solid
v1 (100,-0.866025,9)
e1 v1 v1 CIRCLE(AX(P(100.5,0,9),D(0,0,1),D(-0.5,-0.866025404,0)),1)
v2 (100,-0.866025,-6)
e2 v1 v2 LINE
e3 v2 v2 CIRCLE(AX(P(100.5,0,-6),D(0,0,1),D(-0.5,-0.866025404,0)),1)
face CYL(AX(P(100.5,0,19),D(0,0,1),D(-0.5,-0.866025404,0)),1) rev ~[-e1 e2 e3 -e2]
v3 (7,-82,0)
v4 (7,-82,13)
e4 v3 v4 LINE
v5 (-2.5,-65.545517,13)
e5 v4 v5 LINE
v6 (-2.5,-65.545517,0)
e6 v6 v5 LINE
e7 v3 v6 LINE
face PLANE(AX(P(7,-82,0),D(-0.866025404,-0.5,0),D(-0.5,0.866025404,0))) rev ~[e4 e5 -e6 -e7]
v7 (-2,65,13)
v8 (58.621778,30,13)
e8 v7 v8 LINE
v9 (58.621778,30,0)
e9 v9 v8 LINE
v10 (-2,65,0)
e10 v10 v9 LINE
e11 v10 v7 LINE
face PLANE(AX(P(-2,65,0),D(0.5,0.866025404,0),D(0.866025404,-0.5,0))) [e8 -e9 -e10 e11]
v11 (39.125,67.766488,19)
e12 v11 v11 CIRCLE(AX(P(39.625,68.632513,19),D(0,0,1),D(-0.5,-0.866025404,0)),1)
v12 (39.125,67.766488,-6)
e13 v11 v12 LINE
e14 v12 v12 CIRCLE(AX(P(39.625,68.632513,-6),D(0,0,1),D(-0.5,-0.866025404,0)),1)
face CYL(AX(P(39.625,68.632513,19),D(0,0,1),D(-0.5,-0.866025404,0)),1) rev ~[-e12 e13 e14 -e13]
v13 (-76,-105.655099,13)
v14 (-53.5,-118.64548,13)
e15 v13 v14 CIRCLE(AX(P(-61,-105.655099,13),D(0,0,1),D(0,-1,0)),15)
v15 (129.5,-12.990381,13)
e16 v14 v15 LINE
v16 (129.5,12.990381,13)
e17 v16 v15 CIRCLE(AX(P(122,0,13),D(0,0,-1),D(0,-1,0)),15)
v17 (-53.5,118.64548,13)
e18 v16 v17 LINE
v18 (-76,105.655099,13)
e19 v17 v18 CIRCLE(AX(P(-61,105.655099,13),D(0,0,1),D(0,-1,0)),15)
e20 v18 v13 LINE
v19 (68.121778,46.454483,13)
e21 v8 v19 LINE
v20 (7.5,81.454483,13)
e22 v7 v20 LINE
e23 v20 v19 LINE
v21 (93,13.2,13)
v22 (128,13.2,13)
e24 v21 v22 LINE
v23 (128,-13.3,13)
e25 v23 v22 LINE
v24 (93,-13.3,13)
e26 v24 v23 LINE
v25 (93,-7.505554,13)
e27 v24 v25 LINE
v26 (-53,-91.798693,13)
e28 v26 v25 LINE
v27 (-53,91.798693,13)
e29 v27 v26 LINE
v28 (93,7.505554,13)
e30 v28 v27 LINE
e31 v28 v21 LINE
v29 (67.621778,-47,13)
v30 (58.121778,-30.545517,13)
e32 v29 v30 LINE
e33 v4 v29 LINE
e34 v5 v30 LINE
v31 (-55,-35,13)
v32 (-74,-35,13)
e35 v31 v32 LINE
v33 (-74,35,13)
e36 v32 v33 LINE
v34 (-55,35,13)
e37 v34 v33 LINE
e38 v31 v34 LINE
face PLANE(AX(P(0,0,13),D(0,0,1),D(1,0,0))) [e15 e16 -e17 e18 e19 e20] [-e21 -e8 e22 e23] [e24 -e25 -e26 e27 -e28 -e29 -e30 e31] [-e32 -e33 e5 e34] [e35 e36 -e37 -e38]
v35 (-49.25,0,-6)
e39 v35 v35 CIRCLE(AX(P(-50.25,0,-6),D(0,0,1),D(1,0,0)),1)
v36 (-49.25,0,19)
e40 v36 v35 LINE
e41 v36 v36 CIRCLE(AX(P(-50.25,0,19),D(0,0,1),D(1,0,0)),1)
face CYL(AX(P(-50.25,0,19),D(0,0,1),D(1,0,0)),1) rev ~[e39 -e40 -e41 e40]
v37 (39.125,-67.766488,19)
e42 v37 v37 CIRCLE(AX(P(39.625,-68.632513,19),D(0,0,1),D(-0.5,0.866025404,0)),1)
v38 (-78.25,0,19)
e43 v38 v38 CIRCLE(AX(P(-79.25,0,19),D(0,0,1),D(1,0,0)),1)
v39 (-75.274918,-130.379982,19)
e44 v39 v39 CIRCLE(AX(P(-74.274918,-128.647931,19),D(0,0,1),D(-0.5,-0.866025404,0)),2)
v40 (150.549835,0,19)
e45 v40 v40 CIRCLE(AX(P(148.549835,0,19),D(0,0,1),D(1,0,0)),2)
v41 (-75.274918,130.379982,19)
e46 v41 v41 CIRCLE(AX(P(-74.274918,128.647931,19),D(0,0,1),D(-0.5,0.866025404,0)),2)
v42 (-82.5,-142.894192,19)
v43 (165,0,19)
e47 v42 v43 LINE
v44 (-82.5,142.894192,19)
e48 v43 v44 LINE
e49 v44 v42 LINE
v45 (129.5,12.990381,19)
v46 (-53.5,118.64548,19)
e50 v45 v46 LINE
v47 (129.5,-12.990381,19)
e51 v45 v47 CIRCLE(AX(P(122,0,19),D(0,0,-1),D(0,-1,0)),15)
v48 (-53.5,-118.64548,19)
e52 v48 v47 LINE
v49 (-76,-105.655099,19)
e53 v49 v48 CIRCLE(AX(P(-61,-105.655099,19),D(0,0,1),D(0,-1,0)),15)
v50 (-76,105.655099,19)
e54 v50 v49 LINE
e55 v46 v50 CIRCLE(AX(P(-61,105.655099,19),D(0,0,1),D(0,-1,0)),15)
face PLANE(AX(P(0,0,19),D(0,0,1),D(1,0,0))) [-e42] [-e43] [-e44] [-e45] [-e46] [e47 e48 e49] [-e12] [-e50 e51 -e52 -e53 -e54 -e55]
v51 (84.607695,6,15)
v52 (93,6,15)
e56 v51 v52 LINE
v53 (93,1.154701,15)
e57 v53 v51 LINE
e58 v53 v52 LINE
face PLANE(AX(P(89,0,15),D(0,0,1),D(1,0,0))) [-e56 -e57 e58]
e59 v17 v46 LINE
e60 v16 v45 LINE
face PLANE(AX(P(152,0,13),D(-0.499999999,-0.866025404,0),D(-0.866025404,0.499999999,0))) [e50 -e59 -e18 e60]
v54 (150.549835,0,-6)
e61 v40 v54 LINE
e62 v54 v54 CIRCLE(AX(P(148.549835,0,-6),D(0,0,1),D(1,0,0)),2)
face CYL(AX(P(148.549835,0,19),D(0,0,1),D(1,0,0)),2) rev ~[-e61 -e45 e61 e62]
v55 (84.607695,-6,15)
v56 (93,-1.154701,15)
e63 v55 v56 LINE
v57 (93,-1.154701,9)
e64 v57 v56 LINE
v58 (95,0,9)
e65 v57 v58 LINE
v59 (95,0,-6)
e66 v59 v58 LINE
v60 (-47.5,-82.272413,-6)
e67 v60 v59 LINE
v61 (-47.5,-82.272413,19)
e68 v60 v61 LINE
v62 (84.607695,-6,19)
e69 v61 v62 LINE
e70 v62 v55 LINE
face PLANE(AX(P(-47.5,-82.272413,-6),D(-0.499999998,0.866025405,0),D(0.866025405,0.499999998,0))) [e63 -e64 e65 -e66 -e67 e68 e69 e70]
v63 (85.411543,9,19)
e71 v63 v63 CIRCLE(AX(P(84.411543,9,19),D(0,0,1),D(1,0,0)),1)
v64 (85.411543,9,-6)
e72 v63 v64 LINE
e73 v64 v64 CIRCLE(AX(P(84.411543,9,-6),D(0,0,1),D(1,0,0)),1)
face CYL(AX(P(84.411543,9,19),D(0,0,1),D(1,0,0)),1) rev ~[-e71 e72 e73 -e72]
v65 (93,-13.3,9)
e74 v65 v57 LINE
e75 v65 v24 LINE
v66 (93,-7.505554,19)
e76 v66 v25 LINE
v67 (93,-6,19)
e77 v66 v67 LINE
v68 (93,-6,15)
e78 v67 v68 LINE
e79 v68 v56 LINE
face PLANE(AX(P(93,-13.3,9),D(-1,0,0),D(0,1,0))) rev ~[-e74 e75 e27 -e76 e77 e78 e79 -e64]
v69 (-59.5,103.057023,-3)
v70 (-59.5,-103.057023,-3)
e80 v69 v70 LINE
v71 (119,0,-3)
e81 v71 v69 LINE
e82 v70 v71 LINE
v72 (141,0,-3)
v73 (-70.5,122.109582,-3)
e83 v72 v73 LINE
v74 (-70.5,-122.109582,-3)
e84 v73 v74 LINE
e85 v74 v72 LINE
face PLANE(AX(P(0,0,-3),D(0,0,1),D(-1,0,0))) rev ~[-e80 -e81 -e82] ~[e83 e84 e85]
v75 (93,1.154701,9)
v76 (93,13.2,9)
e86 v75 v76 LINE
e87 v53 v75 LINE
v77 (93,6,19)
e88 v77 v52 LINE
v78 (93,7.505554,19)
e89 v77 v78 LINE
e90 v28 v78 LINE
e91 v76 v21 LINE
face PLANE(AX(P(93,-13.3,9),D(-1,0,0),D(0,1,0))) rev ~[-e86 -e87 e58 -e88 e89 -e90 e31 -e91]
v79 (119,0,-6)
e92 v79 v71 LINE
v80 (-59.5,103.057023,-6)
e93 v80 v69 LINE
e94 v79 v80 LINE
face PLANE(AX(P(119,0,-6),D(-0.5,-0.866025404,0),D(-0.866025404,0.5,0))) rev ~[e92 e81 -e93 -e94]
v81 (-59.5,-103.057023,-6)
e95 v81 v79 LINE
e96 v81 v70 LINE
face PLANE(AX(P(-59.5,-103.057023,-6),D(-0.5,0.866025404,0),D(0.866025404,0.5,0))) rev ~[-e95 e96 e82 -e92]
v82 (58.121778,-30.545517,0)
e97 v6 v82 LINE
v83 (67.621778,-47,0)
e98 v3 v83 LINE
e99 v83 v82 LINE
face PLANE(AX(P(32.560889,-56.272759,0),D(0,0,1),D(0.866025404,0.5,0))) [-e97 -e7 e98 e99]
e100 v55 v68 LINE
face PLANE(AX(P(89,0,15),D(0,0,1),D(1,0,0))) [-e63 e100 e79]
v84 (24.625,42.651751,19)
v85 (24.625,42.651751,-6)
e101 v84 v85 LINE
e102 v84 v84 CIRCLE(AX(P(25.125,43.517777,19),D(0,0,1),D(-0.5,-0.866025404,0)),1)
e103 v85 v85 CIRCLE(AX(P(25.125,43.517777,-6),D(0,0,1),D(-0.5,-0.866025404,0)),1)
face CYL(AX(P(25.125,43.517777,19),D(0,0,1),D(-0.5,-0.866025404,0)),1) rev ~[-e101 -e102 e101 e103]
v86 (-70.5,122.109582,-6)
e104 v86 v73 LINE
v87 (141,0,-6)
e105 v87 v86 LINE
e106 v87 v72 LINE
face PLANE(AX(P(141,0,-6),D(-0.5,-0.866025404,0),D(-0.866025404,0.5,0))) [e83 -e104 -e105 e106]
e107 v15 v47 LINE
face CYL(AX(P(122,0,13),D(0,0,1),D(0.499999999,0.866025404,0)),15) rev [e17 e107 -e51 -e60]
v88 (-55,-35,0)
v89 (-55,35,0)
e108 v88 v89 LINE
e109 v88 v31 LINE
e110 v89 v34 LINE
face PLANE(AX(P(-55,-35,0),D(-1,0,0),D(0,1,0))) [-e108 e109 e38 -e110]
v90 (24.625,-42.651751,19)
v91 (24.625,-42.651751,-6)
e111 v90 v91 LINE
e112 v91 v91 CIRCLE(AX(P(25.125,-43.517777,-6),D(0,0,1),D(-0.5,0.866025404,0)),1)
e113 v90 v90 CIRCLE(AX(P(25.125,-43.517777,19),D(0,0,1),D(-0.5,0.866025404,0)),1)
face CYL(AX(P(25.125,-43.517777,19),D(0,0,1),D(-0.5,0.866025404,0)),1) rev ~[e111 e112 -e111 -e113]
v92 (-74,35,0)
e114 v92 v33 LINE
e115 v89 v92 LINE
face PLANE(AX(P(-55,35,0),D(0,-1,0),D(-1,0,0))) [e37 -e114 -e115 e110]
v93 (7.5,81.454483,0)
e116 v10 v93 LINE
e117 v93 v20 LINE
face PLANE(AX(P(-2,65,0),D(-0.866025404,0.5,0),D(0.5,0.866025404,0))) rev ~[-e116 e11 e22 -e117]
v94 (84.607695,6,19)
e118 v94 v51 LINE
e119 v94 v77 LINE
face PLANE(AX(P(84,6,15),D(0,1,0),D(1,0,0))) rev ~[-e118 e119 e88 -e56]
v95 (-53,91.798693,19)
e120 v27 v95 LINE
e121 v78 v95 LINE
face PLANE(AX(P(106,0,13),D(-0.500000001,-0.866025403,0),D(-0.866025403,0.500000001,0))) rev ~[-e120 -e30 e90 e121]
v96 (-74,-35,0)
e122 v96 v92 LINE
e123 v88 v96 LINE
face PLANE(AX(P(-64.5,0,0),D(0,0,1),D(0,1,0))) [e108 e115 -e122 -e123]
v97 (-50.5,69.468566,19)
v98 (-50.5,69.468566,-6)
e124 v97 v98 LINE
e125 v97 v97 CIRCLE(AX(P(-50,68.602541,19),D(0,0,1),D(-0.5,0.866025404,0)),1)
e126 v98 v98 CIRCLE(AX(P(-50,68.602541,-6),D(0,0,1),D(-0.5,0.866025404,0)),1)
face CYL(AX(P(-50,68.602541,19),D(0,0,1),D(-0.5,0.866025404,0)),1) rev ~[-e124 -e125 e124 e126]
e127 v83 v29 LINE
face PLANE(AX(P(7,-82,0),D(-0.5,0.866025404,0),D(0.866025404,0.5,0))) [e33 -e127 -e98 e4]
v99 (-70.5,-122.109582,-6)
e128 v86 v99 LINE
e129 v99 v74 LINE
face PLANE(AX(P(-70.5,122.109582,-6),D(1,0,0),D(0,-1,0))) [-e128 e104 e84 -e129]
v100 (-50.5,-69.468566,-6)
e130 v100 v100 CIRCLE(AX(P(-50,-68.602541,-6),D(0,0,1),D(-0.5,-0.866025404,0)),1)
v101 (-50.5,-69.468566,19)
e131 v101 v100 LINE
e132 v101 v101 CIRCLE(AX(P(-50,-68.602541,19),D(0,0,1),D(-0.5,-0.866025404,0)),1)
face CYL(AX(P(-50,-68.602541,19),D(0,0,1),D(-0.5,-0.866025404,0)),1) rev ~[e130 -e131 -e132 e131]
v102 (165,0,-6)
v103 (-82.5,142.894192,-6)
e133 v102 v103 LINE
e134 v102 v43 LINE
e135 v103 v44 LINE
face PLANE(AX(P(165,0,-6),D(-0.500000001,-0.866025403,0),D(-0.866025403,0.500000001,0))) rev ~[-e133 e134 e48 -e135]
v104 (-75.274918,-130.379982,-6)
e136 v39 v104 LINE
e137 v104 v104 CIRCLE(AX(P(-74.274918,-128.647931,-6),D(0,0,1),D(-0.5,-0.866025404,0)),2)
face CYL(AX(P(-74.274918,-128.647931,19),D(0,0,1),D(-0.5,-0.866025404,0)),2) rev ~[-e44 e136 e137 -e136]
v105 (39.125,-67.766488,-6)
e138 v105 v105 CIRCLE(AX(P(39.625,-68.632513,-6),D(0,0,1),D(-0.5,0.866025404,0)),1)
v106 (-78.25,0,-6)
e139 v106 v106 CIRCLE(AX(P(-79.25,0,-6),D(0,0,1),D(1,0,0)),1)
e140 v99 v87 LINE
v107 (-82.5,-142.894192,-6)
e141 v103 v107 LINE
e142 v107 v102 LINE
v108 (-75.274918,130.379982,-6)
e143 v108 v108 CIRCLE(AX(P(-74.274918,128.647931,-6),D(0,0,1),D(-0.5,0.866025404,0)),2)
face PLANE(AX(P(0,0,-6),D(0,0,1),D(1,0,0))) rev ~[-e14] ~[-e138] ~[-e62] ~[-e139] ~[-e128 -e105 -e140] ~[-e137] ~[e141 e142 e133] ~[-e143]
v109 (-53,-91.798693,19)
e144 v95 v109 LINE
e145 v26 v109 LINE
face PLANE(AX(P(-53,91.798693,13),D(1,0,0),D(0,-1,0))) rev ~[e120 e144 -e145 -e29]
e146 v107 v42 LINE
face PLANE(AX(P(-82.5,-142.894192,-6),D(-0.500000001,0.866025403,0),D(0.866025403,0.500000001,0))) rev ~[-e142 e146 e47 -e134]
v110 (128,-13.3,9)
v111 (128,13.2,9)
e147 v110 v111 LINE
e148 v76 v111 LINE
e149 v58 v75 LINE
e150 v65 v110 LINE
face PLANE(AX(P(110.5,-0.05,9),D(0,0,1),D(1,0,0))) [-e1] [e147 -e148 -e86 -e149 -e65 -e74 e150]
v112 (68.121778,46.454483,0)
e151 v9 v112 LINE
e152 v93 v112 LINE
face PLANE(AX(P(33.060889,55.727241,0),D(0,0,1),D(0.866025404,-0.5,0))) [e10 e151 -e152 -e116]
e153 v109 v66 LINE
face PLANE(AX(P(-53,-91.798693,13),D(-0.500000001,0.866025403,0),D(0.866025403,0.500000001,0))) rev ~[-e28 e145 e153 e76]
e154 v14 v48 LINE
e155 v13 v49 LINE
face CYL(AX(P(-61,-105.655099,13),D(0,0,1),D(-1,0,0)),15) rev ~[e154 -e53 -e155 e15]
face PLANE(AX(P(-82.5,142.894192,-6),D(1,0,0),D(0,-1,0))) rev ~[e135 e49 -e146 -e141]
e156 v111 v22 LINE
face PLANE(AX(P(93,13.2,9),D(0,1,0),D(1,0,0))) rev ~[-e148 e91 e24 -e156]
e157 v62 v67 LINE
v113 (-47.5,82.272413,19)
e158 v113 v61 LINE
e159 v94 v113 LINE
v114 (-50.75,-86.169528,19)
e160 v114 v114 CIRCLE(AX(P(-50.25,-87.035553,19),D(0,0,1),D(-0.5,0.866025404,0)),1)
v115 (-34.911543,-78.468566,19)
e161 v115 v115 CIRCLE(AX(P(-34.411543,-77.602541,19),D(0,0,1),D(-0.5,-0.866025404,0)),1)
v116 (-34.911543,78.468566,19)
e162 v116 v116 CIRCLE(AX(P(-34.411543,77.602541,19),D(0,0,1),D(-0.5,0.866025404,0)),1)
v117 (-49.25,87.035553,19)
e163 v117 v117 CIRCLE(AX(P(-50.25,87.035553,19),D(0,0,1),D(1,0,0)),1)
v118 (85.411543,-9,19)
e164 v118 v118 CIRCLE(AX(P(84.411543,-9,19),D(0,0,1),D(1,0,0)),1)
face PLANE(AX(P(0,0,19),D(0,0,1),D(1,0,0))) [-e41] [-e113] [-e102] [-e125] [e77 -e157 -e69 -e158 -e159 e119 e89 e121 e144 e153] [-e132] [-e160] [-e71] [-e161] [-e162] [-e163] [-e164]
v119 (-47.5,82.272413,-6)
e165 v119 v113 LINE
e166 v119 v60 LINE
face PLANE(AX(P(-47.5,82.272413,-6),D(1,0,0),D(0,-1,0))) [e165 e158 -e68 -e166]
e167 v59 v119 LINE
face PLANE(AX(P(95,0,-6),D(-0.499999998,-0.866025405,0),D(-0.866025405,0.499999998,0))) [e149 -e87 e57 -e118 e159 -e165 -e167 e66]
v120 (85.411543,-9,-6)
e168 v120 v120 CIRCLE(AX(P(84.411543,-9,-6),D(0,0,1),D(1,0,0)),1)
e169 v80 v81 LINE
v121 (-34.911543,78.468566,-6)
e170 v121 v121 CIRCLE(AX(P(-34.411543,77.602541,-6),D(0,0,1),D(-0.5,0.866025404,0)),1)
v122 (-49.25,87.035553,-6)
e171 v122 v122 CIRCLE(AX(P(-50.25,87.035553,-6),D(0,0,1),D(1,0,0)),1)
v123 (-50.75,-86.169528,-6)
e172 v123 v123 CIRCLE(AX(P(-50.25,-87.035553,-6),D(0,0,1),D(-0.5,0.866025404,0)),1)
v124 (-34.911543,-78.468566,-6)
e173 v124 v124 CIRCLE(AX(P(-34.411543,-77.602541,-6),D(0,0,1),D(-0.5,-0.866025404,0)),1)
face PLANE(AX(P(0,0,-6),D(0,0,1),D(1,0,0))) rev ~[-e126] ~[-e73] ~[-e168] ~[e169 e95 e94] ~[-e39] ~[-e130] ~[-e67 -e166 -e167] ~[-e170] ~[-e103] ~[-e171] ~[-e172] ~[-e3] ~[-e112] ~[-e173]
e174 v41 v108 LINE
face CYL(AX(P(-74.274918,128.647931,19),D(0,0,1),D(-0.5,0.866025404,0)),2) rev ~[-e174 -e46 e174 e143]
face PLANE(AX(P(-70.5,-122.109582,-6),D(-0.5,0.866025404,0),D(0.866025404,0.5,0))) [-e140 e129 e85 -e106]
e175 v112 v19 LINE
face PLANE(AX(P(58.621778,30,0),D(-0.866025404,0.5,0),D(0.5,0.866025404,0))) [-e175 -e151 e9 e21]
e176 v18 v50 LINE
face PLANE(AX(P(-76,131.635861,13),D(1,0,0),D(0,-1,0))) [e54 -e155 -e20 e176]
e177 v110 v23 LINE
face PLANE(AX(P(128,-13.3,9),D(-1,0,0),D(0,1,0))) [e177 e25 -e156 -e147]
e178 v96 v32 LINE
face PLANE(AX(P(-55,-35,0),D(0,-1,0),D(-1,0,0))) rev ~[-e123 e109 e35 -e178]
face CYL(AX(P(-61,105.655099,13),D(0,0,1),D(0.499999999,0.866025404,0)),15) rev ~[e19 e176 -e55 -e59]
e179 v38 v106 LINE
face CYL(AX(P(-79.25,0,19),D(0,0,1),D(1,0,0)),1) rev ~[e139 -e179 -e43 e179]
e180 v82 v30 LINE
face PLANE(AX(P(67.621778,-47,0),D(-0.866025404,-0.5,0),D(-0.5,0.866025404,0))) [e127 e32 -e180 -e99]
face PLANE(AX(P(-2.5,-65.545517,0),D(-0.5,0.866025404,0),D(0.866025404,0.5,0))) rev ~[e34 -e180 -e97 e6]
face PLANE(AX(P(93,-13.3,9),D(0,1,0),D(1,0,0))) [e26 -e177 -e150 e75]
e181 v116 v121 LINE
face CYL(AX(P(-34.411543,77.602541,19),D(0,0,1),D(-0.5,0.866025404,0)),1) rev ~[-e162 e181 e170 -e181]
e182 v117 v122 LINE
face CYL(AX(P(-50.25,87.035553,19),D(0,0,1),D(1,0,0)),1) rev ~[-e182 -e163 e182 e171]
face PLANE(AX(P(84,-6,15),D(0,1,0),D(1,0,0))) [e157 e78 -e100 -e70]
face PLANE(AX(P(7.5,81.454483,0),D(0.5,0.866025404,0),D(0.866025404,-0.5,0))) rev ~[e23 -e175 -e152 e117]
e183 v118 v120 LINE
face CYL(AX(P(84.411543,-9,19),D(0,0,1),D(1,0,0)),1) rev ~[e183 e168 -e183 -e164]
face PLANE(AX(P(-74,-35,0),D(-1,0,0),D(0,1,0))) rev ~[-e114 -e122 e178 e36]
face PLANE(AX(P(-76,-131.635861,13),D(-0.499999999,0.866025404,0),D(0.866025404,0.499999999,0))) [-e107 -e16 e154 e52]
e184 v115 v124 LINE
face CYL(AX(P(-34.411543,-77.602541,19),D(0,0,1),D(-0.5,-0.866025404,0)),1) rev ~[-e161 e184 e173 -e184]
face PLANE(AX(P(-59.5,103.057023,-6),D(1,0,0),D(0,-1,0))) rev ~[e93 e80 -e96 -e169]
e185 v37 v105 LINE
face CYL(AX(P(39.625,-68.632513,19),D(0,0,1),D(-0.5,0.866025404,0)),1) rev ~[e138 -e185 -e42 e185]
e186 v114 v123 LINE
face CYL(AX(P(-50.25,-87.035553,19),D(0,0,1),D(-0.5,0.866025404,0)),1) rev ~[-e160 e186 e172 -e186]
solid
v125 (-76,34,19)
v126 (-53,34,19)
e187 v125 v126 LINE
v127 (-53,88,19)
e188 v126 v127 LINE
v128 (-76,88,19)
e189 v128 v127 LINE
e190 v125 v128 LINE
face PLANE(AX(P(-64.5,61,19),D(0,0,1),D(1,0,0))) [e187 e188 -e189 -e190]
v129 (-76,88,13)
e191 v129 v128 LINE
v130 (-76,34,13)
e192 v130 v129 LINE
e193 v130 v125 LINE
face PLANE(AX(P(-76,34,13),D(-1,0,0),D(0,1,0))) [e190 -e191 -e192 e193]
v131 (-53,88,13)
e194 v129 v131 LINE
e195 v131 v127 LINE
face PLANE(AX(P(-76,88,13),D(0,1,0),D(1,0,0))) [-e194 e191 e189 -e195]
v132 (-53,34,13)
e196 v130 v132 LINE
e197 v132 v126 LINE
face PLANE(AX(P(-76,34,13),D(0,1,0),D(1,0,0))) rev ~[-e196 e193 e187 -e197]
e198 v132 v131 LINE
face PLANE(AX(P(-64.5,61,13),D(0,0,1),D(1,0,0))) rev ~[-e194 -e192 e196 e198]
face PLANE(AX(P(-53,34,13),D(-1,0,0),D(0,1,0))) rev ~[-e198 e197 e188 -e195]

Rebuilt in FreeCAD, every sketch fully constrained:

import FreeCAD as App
import Part
import Sketcher
from FreeCAD import Vector
Q = App.Units.Quantity


def edges_at(feature, points):
    """Names of the edges that pass closest to the given points."""
    edges = feature.Shape.Edges
    near = lambda p: min(range(len(edges)), key=lambda i: edges[i].distToShape(Part.Vertex(*p))[0])
    return sorted({f"Edge{near(p) + 1}" for p in points})

doc = App.newDocument("Part")
body = doc.addObject("PartDesign::Body", "Body")

sketch1 = doc.addObject("Sketcher::SketchObject", "Sketch")
body.addObject(sketch1)
sketch1.AttachmentSupport = (doc.XY_Plane, [""])
sketch1.MapMode = "FlatFace"
sketch1.AttachmentOffset = App.Placement(Vector(0, 0, 13), App.Rotation())
sketch1.addGeometry([
    Part.LineSegment(Vector(-76, 88, 0), Vector(-76, 34, 0)),
    Part.LineSegment(Vector(-76, 34, 0), Vector(-53, 34, 0)),
    Part.LineSegment(Vector(-53, 34, 0), Vector(-53, 88, 0)),
    Part.LineSegment(Vector(-53, 88, 0), Vector(-76, 88, 0)),
], False)
sketch1.addConstraint([
    Sketcher.Constraint("Coincident", 0, 2, 1, 1),
    Sketcher.Constraint("Coincident", 1, 2, 2, 1),
    Sketcher.Constraint("Coincident", 2, 2, 3, 1),
    Sketcher.Constraint("Coincident", 3, 2, 0, 1),
    Sketcher.Constraint("Vertical", 0),
    Sketcher.Constraint("Horizontal", 1),
    Sketcher.Constraint("Vertical", 2),
    Sketcher.Constraint("Horizontal", 3),
    Sketcher.Constraint("DistanceX", 1, 1, 1, 2, Q("23 mm")),
    Sketcher.Constraint("DistanceY", 0, 2, 0, 1, Q("54 mm")),
    Sketcher.Constraint("DistanceX", 0, 2, -1, 1, Q("76 mm")),
    Sketcher.Constraint("DistanceY", -1, 1, 0, 2, Q("34 mm")),
])
pad1 = doc.addObject("PartDesign::Pad", "Pad")
body.addObject(pad1)
pad1.Profile = sketch1
pad1.Length = 6
body2 = doc.addObject("PartDesign::Body", "Body001")

sketch2 = doc.addObject("Sketcher::SketchObject", "Sketch001")
body2.addObject(sketch2)
sketch2.AttachmentSupport = (doc.getObject("XY_Plane001"), [""])
sketch2.MapMode = "FlatFace"
sketch2.AttachmentOffset = App.Placement(Vector(0, 0, 13), App.Rotation())
sketch2.addGeometry([
    Part.LineSegment(Vector(106, 0, 0), Vector(-53, 92, 0)),
    Part.LineSegment(Vector(-53, 92, 0), Vector(-53, -92, 0)),
    Part.LineSegment(Vector(-53, -92, 0), Vector(106, 0, 0)),
], False)
sketch2.addConstraint([
    Sketcher.Constraint("Coincident", 0, 2, 1, 1),
    Sketcher.Constraint("Coincident", 1, 2, 2, 1),
    Sketcher.Constraint("Coincident", 2, 2, 0, 1),
    Sketcher.Constraint("Vertical", 1),
    Sketcher.Constraint("PointOnObject", 2, 2, -1),
    Sketcher.Constraint("Equal", 0, 2),
    Sketcher.Constraint("Angle", 0, Q("150 deg")),
    Sketcher.Constraint("DistanceX", 0, 2, -1, 1, Q("53 mm")),
    Sketcher.Constraint("DistanceX", -1, 1, 2, 2, Q("106 mm")),
])
pad2 = doc.addObject("PartDesign::Pad", "Pad001")
body2.addObject(pad2)
pad2.Profile = sketch2
pad2.Length = 6
body3 = doc.addObject("PartDesign::Body", "Body002")

sketch3 = doc.addObject("Sketcher::SketchObject", "Sketch002")
body3.addObject(sketch3)
sketch3.AttachmentSupport = (doc.getObject("XY_Plane002"), [""])
sketch3.MapMode = "FlatFace"
sketch3.AttachmentOffset = App.Placement(Vector(0, 0, 13), App.Rotation())
sketch3.addGeometry([
    Part.LineSegment(Vector(152, 0, 0), Vector(-76, 132, 0)),
    Part.LineSegment(Vector(-76, 132, 0), Vector(-76, -132, 0)),
    Part.LineSegment(Vector(-76, -132, 0), Vector(152, 0, 0)),
], False)
sketch3.addConstraint([
    Sketcher.Constraint("Coincident", 0, 2, 1, 1),
    Sketcher.Constraint("Coincident", 1, 2, 2, 1),
    Sketcher.Constraint("Coincident", 2, 2, 0, 1),
    Sketcher.Constraint("Vertical", 1),
    Sketcher.Constraint("PointOnObject", 2, 2, -1),
    Sketcher.Constraint("Equal", 0, 2),
    Sketcher.Constraint("Angle", 0, Q("150 deg")),
    Sketcher.Constraint("DistanceX", 0, 2, -1, 1, Q("76 mm")),
    Sketcher.Constraint("DistanceX", -1, 1, 2, 2, Q("152 mm")),
])
pad3 = doc.addObject("PartDesign::Pad", "Pad002")
body3.addObject(pad3)
pad3.Profile = sketch3
pad3.Length = 6
doc.recompute()

boolean = doc.addObject("PartDesign::Boolean", "Boolean")
body3.addObject(boolean)
boolean.Type = "Cut"
boolean.addObjects([body2])
body4 = doc.addObject("PartDesign::Body", "Body003")

sketch4 = doc.addObject("Sketcher::SketchObject", "Sketch003")
body4.addObject(sketch4)
sketch4.AttachmentSupport = (doc.getObject("XY_Plane003"), [""])
sketch4.MapMode = "FlatFace"
sketch4.AttachmentOffset = App.Placement(Vector(0, 0, 15), App.Rotation())
sketch4.addGeometry([
    Part.LineSegment(Vector(84, 6, 0), Vector(84, -6, 0)),
    Part.LineSegment(Vector(84, -6, 0), Vector(94, -6, 0)),
    Part.LineSegment(Vector(94, -6, 0), Vector(94, 6, 0)),
    Part.LineSegment(Vector(94, 6, 0), Vector(84, 6, 0)),
], False)
sketch4.addConstraint([
    Sketcher.Constraint("Coincident", 0, 2, 1, 1),
    Sketcher.Constraint("Coincident", 1, 2, 2, 1),
    Sketcher.Constraint("Coincident", 2, 2, 3, 1),
    Sketcher.Constraint("Coincident", 3, 2, 0, 1),
    Sketcher.Constraint("Vertical", 0),
    Sketcher.Constraint("Horizontal", 1),
    Sketcher.Constraint("Vertical", 2),
    Sketcher.Constraint("Horizontal", 3),
    Sketcher.Constraint("DistanceX", 1, 1, 1, 2, Q("10 mm")),
    Sketcher.Constraint("DistanceY", 0, 2, 0, 1, Q("12 mm")),
    Sketcher.Constraint("DistanceX", -1, 1, 0, 2, Q("84 mm")),
    Sketcher.Constraint("DistanceY", 0, 2, -1, 1, Q("6 mm")),
])
pad4 = doc.addObject("PartDesign::Pad", "Pad003")
body4.addObject(pad4)
pad4.Profile = sketch4
pad4.Length = 4
body5 = doc.addObject("PartDesign::Body", "Body004")

sketch5 = doc.addObject("Sketcher::SketchObject", "Sketch004")
body5.addObject(sketch5)
sketch5.AttachmentSupport = (doc.getObject("XY_Plane004"), [""])
sketch5.MapMode = "FlatFace"
sketch5.AttachmentOffset = App.Placement(Vector(0, 0, 9), App.Rotation())
sketch5.addGeometry([
    Part.LineSegment(Vector(93, 13, 0), Vector(93, -13, 0)),
    Part.LineSegment(Vector(93, -13, 0), Vector(128, -13, 0)),
    Part.LineSegment(Vector(128, -13, 0), Vector(128, 13, 0)),
    Part.LineSegment(Vector(128, 13, 0), Vector(93, 13, 0)),
], False)
sketch5.addConstraint([
    Sketcher.Constraint("Coincident", 0, 2, 1, 1),
    Sketcher.Constraint("Coincident", 1, 2, 2, 1),
    Sketcher.Constraint("Coincident", 2, 2, 3, 1),
    Sketcher.Constraint("Coincident", 3, 2, 0, 1),
    Sketcher.Constraint("Vertical", 0),
    Sketcher.Constraint("Horizontal", 1),
    Sketcher.Constraint("Vertical", 2),
    Sketcher.Constraint("Horizontal", 3),
    Sketcher.Constraint("DistanceX", 1, 1, 1, 2, Q("35 mm")),
    Sketcher.Constraint("DistanceY", 0, 2, 0, 1, Q("26.5 mm")),
    Sketcher.Constraint("DistanceX", -1, 1, 0, 2, Q("93 mm")),
    Sketcher.Constraint("DistanceY", 0, 2, -1, 1, Q("13.3 mm")),
])
pad5 = doc.addObject("PartDesign::Pad", "Pad004")
body5.addObject(pad5)
pad5.Profile = sketch5
pad5.Length = 10
body6 = doc.addObject("PartDesign::Body", "Body005")

sketch6 = doc.addObject("Sketcher::SketchObject", "Sketch005")
body6.addObject(sketch6)
sketch6.AttachmentSupport = (doc.getObject("XY_Plane005"), [""])
sketch6.MapMode = "FlatFace"
sketch6.addGeometry([
    Part.LineSegment(Vector(0, 19, 0), Vector(0, 0, 0)),
    Part.LineSegment(Vector(0, 0, 0), Vector(70, 0, 0)),
    Part.LineSegment(Vector(70, 0, 0), Vector(70, 19, 0)),
    Part.LineSegment(Vector(70, 19, 0), Vector(0, 19, 0)),
], False)
sketch6.addConstraint([
    Sketcher.Constraint("Coincident", 0, 2, 1, 1),
    Sketcher.Constraint("Coincident", 1, 2, 2, 1),
    Sketcher.Constraint("Coincident", 2, 2, 3, 1),
    Sketcher.Constraint("Coincident", 3, 2, 0, 1),
    Sketcher.Constraint("Vertical", 0),
    Sketcher.Constraint("Horizontal", 1),
    Sketcher.Constraint("Vertical", 2),
    Sketcher.Constraint("Horizontal", 3),
    Sketcher.Constraint("Coincident", 0, 2, -1, 1),
    Sketcher.Constraint("DistanceX", 1, 1, 1, 2, Q("70 mm")),
    Sketcher.Constraint("DistanceY", 0, 2, 0, 1, Q("19 mm")),
])
pad6 = doc.addObject("PartDesign::Pad", "Pad005")
body6.addObject(pad6)
pad6.Profile = sketch6
pad6.Length = 19
body7 = doc.addObject("PartDesign::Body", "Body006")
doc.recompute()

body6.Placement = App.Placement(Vector(7, -82, 0), App.Rotation(Vector(0, 0, 1), 30))
boolean2 = doc.addObject("PartDesign::Boolean", "Boolean001")
body7.addObject(boolean2)
boolean2.Type = "Fuse"
boolean2.addObjects([body6])
body8 = doc.addObject("PartDesign::Body", "Body007")

sketch7 = doc.addObject("Sketcher::SketchObject", "Sketch006")
body8.addObject(sketch7)
sketch7.AttachmentSupport = (doc.getObject("XY_Plane007"), [""])
sketch7.MapMode = "FlatFace"
sketch7.addGeometry([
    Part.LineSegment(Vector(0, 19, 0), Vector(0, 0, 0)),
    Part.LineSegment(Vector(0, 0, 0), Vector(70, 0, 0)),
    Part.LineSegment(Vector(70, 0, 0), Vector(70, 19, 0)),
    Part.LineSegment(Vector(70, 19, 0), Vector(0, 19, 0)),
], False)
sketch7.addConstraint([
    Sketcher.Constraint("Coincident", 0, 2, 1, 1),
    Sketcher.Constraint("Coincident", 1, 2, 2, 1),
    Sketcher.Constraint("Coincident", 2, 2, 3, 1),
    Sketcher.Constraint("Coincident", 3, 2, 0, 1),
    Sketcher.Constraint("Vertical", 0),
    Sketcher.Constraint("Horizontal", 1),
    Sketcher.Constraint("Vertical", 2),
    Sketcher.Constraint("Horizontal", 3),
    Sketcher.Constraint("Coincident", 0, 2, -1, 1),
    Sketcher.Constraint("DistanceX", 1, 1, 1, 2, Q("70 mm")),
    Sketcher.Constraint("DistanceY", 0, 2, 0, 1, Q("19 mm")),
])
pad7 = doc.addObject("PartDesign::Pad", "Pad006")
body8.addObject(pad7)
pad7.Profile = sketch7
pad7.Length = 19
body9 = doc.addObject("PartDesign::Body", "Body008")
doc.recompute()

body8.Placement = App.Placement(Vector(-55, -35, 0), App.Rotation(Vector(0, 0, 1), 90))
boolean3 = doc.addObject("PartDesign::Boolean", "Boolean002")
body9.addObject(boolean3)
boolean3.Type = "Fuse"
boolean3.addObjects([body8])
body10 = doc.addObject("PartDesign::Body", "Body009")

sketch8 = doc.addObject("Sketcher::SketchObject", "Sketch007")
body10.addObject(sketch8)
sketch8.AttachmentSupport = (doc.getObject("XY_Plane009"), [""])
sketch8.MapMode = "FlatFace"
sketch8.addGeometry([
    Part.LineSegment(Vector(0, 19, 0), Vector(0, 0, 0)),
    Part.LineSegment(Vector(0, 0, 0), Vector(70, 0, 0)),
    Part.LineSegment(Vector(70, 0, 0), Vector(70, 19, 0)),
    Part.LineSegment(Vector(70, 19, 0), Vector(0, 19, 0)),
], False)
sketch8.addConstraint([
    Sketcher.Constraint("Coincident", 0, 2, 1, 1),
    Sketcher.Constraint("Coincident", 1, 2, 2, 1),
    Sketcher.Constraint("Coincident", 2, 2, 3, 1),
    Sketcher.Constraint("Coincident", 3, 2, 0, 1),
    Sketcher.Constraint("Vertical", 0),
    Sketcher.Constraint("Horizontal", 1),
    Sketcher.Constraint("Vertical", 2),
    Sketcher.Constraint("Horizontal", 3),
    Sketcher.Constraint("Coincident", 0, 2, -1, 1),
    Sketcher.Constraint("DistanceX", 1, 1, 1, 2, Q("70 mm")),
    Sketcher.Constraint("DistanceY", 0, 2, 0, 1, Q("19 mm")),
])
pad8 = doc.addObject("PartDesign::Pad", "Pad007")
body10.addObject(pad8)
pad8.Profile = sketch8
pad8.Length = 19
body11 = doc.addObject("PartDesign::Body", "Body010")
doc.recompute()

body10.Placement = App.Placement(Vector(-2, 65, 0), App.Rotation(Vector(0, 0, -1), 30))
boolean4 = doc.addObject("PartDesign::Boolean", "Boolean003")
body11.addObject(boolean4)
boolean4.Type = "Fuse"
boolean4.addObjects([body10])
body12 = doc.addObject("PartDesign::Body", "Body011")

sketch9 = doc.addObject("Sketcher::SketchObject", "Sketch008")
body12.addObject(sketch9)
sketch9.AttachmentSupport = (doc.getObject("XY_Plane011"), [""])
sketch9.MapMode = "FlatFace"
sketch9.AttachmentOffset = App.Placement(Vector(0, 0, -6), App.Rotation())
sketch9.addGeometry([
    Part.LineSegment(Vector(95, 0, 0), Vector(-48, 82, 0)),
    Part.LineSegment(Vector(-48, 82, 0), Vector(-48, -82, 0)),
    Part.LineSegment(Vector(-48, -82, 0), Vector(95, 0, 0)),
], False)
sketch9.addConstraint([
    Sketcher.Constraint("Coincident", 0, 2, 1, 1),
    Sketcher.Constraint("Coincident", 1, 2, 2, 1),
    Sketcher.Constraint("Coincident", 2, 2, 0, 1),
    Sketcher.Constraint("Vertical", 1),
    Sketcher.Constraint("PointOnObject", 2, 2, -1),
    Sketcher.Constraint("Equal", 0, 2),
    Sketcher.Constraint("Angle", 0, Q("150 deg")),
    Sketcher.Constraint("DistanceX", -1, 1, 2, 2, Q("95 mm")),
    Sketcher.Constraint("DistanceX", 0, 2, -1, 1, Q("47.5 mm")),
])
pad9 = doc.addObject("PartDesign::Pad", "Pad008")
body12.addObject(pad9)
pad9.Profile = sketch9
pad9.Length = 25
body13 = doc.addObject("PartDesign::Body", "Body012")

sketch10 = doc.addObject("Sketcher::SketchObject", "Sketch009")
body13.addObject(sketch10)
sketch10.AttachmentSupport = (doc.getObject("XY_Plane012"), [""])
sketch10.MapMode = "FlatFace"
sketch10.AttachmentOffset = App.Placement(Vector(0, 0, -6), App.Rotation())
sketch10.addGeometry([
    Part.LineSegment(Vector(165, 0, 0), Vector(-82, 143, 0)),
    Part.LineSegment(Vector(-82, 143, 0), Vector(-82, -143, 0)),
    Part.LineSegment(Vector(-82, -143, 0), Vector(165, 0, 0)),
], False)
sketch10.addConstraint([
    Sketcher.Constraint("Coincident", 0, 2, 1, 1),
    Sketcher.Constraint("Coincident", 1, 2, 2, 1),
    Sketcher.Constraint("Coincident", 2, 2, 0, 1),
    Sketcher.Constraint("Vertical", 1),
    Sketcher.Constraint("PointOnObject", 2, 2, -1),
    Sketcher.Constraint("Equal", 0, 2),
    Sketcher.Constraint("Angle", 0, Q("150 deg")),
    Sketcher.Constraint("DistanceX", -1, 1, 2, 2, Q("165 mm")),
    Sketcher.Constraint("DistanceX", 0, 2, -1, 1, Q("82.5 mm")),
])
pad10 = doc.addObject("PartDesign::Pad", "Pad009")
body13.addObject(pad10)
pad10.Profile = sketch10
pad10.Length = 25
doc.recompute()

boolean5 = doc.addObject("PartDesign::Boolean", "Boolean004")
body13.addObject(boolean5)
boolean5.Type = "Cut"
boolean5.addObjects([body12])
doc.recompute()

boolean6 = doc.addObject("PartDesign::Boolean", "Boolean005")
body13.addObject(boolean6)
boolean6.Type = "Cut"
boolean6.addObjects([body11])
doc.recompute()

boolean7 = doc.addObject("PartDesign::Boolean", "Boolean006")
body13.addObject(boolean7)
boolean7.Type = "Cut"
boolean7.addObjects([body9])
doc.recompute()

boolean8 = doc.addObject("PartDesign::Boolean", "Boolean007")
body13.addObject(boolean8)
boolean8.Type = "Cut"
boolean8.addObjects([body7])
doc.recompute()

boolean9 = doc.addObject("PartDesign::Boolean", "Boolean008")
body13.addObject(boolean9)
boolean9.Type = "Cut"
boolean9.addObjects([body5])
doc.recompute()

boolean10 = doc.addObject("PartDesign::Boolean", "Boolean009")
body13.addObject(boolean10)
boolean10.Type = "Cut"
boolean10.addObjects([body4])
doc.recompute()

boolean11 = doc.addObject("PartDesign::Boolean", "Boolean010")
body13.addObject(boolean11)
boolean11.Type = "Cut"
boolean11.addObjects([body3])
doc.recompute()

fillet = doc.addObject("PartDesign::Fillet", "Fillet")
body13.addObject(fillet)
fillet.Base = (boolean11, edges_at(boolean11, [(152, 0, 16), (-76, 131.636, 16), (-76, -131.636, 16)]))
fillet.Radius = 15

sketch11 = doc.addObject("Sketcher::SketchObject", "Sketch010")
body13.addObject(sketch11)
sketch11.AttachmentSupport = (doc.getObject("XY_Plane012"), [""])
sketch11.MapMode = "FlatFace"
sketch11.AttachmentOffset = App.Placement(Vector(0, 0, 19), App.Rotation())
sketch11.addGeometry(Part.Circle(Vector(148.5, 0, 0), Vector(0, 0, 1), 2), False)
sketch11.addConstraint([
    Sketcher.Constraint("PointOnObject", 0, 3, -1),
    Sketcher.Constraint("Diameter", 0, Q("4 mm")),
    Sketcher.Constraint("DistanceX", -1, 1, 0, 3, Q("148.549835 mm")),
])
pocket1 = doc.addObject("PartDesign::Pocket", "Pocket")
body13.addObject(pocket1)
pocket1.Profile = sketch11
pocket1.Type = "ThroughAll"
doc.recompute()

polarpattern = doc.addObject("PartDesign::PolarPattern", "PolarPattern")
body13.addObject(polarpattern)
polarpattern.Originals = [pocket1]
polarpattern.Axis = (doc.getObject("Z_Axis012"), [""])
polarpattern.Angle = 360
polarpattern.Occurrences = 3
body13.Tip = polarpattern

sketch12 = doc.addObject("Sketcher::SketchObject", "Sketch011")
body13.addObject(sketch12)
sketch12.AttachmentSupport = (doc.getObject("XY_Plane012"), [""])
sketch12.MapMode = "FlatFace"
sketch12.AttachmentOffset = App.Placement(Vector(0, 0, -6), App.Rotation())
sketch12.addGeometry([
    Part.LineSegment(Vector(141, 0, 0), Vector(-70, -122, 0)),
    Part.LineSegment(Vector(-70, -122, 0), Vector(-70, 122, 0)),
    Part.LineSegment(Vector(-70, 122, 0), Vector(141, 0, 0)),
    Part.LineSegment(Vector(-60, 103, 0), Vector(-60, -103, 0)),
    Part.LineSegment(Vector(-60, -103, 0), Vector(119, 0, 0)),
    Part.LineSegment(Vector(119, 0, 0), Vector(-60, 103, 0)),
], False)
sketch12.addConstraint([
    Sketcher.Constraint("Coincident", 0, 2, 1, 1),
    Sketcher.Constraint("Coincident", 1, 2, 2, 1),
    Sketcher.Constraint("Coincident", 2, 2, 0, 1),
    Sketcher.Constraint("Coincident", 3, 2, 4, 1),
    Sketcher.Constraint("Coincident", 4, 2, 5, 1),
    Sketcher.Constraint("Coincident", 5, 2, 3, 1),
    Sketcher.Constraint("Vertical", 1),
    Sketcher.Constraint("Vertical", 3),
    Sketcher.Constraint("PointOnObject", 2, 2, -1),
    Sketcher.Constraint("PointOnObject", 4, 2, -1),
    Sketcher.Constraint("Parallel", 0, 4),
    Sketcher.Constraint("Parallel", 2, 5),
    Sketcher.Constraint("Equal", 0, 2),
    Sketcher.Constraint("Angle", 0, Q("-150 deg")),
    Sketcher.Constraint("DistanceX", -1, 1, 2, 2, Q("141 mm")),
    Sketcher.Constraint("DistanceX", -1, 1, 4, 2, Q("119 mm")),
    Sketcher.Constraint("DistanceX", 0, 2, 3, 2, Q("11 mm")),
    Sketcher.Constraint("DistanceX", 0, 2, -1, 1, Q("70.5 mm")),
])
pocket2 = doc.addObject("PartDesign::Pocket", "Pocket001")
body13.addObject(pocket2)
pocket2.Profile = sketch12
pocket2.Length = 3
pocket2.Reversed = True

sketch13 = doc.addObject("Sketcher::SketchObject", "Sketch012")
body13.addObject(sketch13)
sketch13.AttachmentSupport = (doc.getObject("XY_Plane012"), [""])
sketch13.MapMode = "FlatFace"
sketch13.AttachmentOffset = App.Placement(Vector(0, 0, 19), App.Rotation())
sketch13.addGeometry([
    Part.Circle(Vector(-50.2, 0, 0), Vector(0, 0, 1), 1),
    Part.Circle(Vector(-50.2, 87, 0), Vector(0, 0, 1), 1),
], False)
sketch13.addConstraint([
    Sketcher.Constraint("Equal", 0, 1),
    Sketcher.Constraint("PointOnObject", 0, 3, -1),
    Sketcher.Constraint("Vertical", 0, 3, 1, 3),
    Sketcher.Constraint("Diameter", 0, Q("2 mm")),
    Sketcher.Constraint("DistanceX", 0, 3, -1, 1, Q("50.25 mm")),
    Sketcher.Constraint("DistanceY", -1, 1, 1, 3, Q("87.035553 mm")),
])
pocket3 = doc.addObject("PartDesign::Pocket", "Pocket002")
body13.addObject(pocket3)
pocket3.Profile = sketch13
pocket3.Type = "ThroughAll"
doc.recompute()

polarpattern2 = doc.addObject("PartDesign::PolarPattern", "PolarPattern001")
body13.addObject(polarpattern2)
polarpattern2.Originals = [pocket3]
polarpattern2.Axis = (doc.getObject("Z_Axis012"), [""])
polarpattern2.Angle = 360
polarpattern2.Occurrences = 3
body13.Tip = polarpattern2

sketch14 = doc.addObject("Sketcher::SketchObject", "Sketch013")
body13.addObject(sketch14)
sketch14.AttachmentSupport = (doc.getObject("XY_Plane012"), [""])
sketch14.MapMode = "FlatFace"
sketch14.AttachmentOffset = App.Placement(Vector(0, 0, 19), App.Rotation())
sketch14.addGeometry([
    Part.Circle(Vector(84.4, 9, 0), Vector(0, 0, 1), 1),
    Part.Circle(Vector(84.4, -9, 0), Vector(0, 0, 1), 1),
], False)
sketch14.addConstraint([
    Sketcher.Constraint("Equal", 0, 1),
    Sketcher.Constraint("Symmetric", 0, 3, 1, 3, -1),
    Sketcher.Constraint("Diameter", 0, Q("2 mm")),
    Sketcher.Constraint("DistanceY", -1, 1, 0, 3, Q("9 mm")),
    Sketcher.Constraint("DistanceX", -1, 1, 0, 3, Q("84.411543 mm")),
])
pocket4 = doc.addObject("PartDesign::Pocket", "Pocket003")
body13.addObject(pocket4)
pocket4.Profile = sketch14
pocket4.Type = "ThroughAll"
doc.recompute()

polarpattern3 = doc.addObject("PartDesign::PolarPattern", "PolarPattern002")
body13.addObject(polarpattern3)
polarpattern3.Originals = [pocket4]
polarpattern3.Axis = (doc.getObject("Z_Axis012"), [""])
polarpattern3.Angle = 360
polarpattern3.Occurrences = 3
body13.Tip = polarpattern3
doc.recompute()

polarpattern4 = doc.addObject("PartDesign::PolarPattern", "PolarPattern003")
body13.addObject(polarpattern4)
polarpattern4.Originals = [pocket3]
polarpattern4.Axis = (doc.getObject("Z_Axis012"), [""])
polarpattern4.Angle = 360
polarpattern4.Occurrences = 3
body13.Tip = polarpattern4

sketch15 = doc.addObject("Sketcher::SketchObject", "Sketch014")
body13.addObject(sketch15)
sketch15.AttachmentSupport = (doc.getObject("XY_Plane012"), [""])
sketch15.MapMode = "FlatFace"
sketch15.AttachmentOffset = App.Placement(Vector(0, 0, 19), App.Rotation())
sketch15.addGeometry(Part.Circle(Vector(-79.2, 0, 0), Vector(0, 0, 1), 1), False)
sketch15.addConstraint([
    Sketcher.Constraint("PointOnObject", 0, 3, -1),
    Sketcher.Constraint("Diameter", 0, Q("2 mm")),
    Sketcher.Constraint("DistanceX", 0, 3, -1, 1, Q("79.25 mm")),
])
pocket5 = doc.addObject("PartDesign::Pocket", "Pocket004")
body13.addObject(pocket5)
pocket5.Profile = sketch15
pocket5.Type = "ThroughAll"
doc.recompute()

polarpattern5 = doc.addObject("PartDesign::PolarPattern", "PolarPattern004")
body13.addObject(polarpattern5)
polarpattern5.Originals = [pocket5]
polarpattern5.Axis = (doc.getObject("Z_Axis012"), [""])
polarpattern5.Angle = 360
polarpattern5.Occurrences = 3
body13.Tip = polarpattern5

doc.recompute()
